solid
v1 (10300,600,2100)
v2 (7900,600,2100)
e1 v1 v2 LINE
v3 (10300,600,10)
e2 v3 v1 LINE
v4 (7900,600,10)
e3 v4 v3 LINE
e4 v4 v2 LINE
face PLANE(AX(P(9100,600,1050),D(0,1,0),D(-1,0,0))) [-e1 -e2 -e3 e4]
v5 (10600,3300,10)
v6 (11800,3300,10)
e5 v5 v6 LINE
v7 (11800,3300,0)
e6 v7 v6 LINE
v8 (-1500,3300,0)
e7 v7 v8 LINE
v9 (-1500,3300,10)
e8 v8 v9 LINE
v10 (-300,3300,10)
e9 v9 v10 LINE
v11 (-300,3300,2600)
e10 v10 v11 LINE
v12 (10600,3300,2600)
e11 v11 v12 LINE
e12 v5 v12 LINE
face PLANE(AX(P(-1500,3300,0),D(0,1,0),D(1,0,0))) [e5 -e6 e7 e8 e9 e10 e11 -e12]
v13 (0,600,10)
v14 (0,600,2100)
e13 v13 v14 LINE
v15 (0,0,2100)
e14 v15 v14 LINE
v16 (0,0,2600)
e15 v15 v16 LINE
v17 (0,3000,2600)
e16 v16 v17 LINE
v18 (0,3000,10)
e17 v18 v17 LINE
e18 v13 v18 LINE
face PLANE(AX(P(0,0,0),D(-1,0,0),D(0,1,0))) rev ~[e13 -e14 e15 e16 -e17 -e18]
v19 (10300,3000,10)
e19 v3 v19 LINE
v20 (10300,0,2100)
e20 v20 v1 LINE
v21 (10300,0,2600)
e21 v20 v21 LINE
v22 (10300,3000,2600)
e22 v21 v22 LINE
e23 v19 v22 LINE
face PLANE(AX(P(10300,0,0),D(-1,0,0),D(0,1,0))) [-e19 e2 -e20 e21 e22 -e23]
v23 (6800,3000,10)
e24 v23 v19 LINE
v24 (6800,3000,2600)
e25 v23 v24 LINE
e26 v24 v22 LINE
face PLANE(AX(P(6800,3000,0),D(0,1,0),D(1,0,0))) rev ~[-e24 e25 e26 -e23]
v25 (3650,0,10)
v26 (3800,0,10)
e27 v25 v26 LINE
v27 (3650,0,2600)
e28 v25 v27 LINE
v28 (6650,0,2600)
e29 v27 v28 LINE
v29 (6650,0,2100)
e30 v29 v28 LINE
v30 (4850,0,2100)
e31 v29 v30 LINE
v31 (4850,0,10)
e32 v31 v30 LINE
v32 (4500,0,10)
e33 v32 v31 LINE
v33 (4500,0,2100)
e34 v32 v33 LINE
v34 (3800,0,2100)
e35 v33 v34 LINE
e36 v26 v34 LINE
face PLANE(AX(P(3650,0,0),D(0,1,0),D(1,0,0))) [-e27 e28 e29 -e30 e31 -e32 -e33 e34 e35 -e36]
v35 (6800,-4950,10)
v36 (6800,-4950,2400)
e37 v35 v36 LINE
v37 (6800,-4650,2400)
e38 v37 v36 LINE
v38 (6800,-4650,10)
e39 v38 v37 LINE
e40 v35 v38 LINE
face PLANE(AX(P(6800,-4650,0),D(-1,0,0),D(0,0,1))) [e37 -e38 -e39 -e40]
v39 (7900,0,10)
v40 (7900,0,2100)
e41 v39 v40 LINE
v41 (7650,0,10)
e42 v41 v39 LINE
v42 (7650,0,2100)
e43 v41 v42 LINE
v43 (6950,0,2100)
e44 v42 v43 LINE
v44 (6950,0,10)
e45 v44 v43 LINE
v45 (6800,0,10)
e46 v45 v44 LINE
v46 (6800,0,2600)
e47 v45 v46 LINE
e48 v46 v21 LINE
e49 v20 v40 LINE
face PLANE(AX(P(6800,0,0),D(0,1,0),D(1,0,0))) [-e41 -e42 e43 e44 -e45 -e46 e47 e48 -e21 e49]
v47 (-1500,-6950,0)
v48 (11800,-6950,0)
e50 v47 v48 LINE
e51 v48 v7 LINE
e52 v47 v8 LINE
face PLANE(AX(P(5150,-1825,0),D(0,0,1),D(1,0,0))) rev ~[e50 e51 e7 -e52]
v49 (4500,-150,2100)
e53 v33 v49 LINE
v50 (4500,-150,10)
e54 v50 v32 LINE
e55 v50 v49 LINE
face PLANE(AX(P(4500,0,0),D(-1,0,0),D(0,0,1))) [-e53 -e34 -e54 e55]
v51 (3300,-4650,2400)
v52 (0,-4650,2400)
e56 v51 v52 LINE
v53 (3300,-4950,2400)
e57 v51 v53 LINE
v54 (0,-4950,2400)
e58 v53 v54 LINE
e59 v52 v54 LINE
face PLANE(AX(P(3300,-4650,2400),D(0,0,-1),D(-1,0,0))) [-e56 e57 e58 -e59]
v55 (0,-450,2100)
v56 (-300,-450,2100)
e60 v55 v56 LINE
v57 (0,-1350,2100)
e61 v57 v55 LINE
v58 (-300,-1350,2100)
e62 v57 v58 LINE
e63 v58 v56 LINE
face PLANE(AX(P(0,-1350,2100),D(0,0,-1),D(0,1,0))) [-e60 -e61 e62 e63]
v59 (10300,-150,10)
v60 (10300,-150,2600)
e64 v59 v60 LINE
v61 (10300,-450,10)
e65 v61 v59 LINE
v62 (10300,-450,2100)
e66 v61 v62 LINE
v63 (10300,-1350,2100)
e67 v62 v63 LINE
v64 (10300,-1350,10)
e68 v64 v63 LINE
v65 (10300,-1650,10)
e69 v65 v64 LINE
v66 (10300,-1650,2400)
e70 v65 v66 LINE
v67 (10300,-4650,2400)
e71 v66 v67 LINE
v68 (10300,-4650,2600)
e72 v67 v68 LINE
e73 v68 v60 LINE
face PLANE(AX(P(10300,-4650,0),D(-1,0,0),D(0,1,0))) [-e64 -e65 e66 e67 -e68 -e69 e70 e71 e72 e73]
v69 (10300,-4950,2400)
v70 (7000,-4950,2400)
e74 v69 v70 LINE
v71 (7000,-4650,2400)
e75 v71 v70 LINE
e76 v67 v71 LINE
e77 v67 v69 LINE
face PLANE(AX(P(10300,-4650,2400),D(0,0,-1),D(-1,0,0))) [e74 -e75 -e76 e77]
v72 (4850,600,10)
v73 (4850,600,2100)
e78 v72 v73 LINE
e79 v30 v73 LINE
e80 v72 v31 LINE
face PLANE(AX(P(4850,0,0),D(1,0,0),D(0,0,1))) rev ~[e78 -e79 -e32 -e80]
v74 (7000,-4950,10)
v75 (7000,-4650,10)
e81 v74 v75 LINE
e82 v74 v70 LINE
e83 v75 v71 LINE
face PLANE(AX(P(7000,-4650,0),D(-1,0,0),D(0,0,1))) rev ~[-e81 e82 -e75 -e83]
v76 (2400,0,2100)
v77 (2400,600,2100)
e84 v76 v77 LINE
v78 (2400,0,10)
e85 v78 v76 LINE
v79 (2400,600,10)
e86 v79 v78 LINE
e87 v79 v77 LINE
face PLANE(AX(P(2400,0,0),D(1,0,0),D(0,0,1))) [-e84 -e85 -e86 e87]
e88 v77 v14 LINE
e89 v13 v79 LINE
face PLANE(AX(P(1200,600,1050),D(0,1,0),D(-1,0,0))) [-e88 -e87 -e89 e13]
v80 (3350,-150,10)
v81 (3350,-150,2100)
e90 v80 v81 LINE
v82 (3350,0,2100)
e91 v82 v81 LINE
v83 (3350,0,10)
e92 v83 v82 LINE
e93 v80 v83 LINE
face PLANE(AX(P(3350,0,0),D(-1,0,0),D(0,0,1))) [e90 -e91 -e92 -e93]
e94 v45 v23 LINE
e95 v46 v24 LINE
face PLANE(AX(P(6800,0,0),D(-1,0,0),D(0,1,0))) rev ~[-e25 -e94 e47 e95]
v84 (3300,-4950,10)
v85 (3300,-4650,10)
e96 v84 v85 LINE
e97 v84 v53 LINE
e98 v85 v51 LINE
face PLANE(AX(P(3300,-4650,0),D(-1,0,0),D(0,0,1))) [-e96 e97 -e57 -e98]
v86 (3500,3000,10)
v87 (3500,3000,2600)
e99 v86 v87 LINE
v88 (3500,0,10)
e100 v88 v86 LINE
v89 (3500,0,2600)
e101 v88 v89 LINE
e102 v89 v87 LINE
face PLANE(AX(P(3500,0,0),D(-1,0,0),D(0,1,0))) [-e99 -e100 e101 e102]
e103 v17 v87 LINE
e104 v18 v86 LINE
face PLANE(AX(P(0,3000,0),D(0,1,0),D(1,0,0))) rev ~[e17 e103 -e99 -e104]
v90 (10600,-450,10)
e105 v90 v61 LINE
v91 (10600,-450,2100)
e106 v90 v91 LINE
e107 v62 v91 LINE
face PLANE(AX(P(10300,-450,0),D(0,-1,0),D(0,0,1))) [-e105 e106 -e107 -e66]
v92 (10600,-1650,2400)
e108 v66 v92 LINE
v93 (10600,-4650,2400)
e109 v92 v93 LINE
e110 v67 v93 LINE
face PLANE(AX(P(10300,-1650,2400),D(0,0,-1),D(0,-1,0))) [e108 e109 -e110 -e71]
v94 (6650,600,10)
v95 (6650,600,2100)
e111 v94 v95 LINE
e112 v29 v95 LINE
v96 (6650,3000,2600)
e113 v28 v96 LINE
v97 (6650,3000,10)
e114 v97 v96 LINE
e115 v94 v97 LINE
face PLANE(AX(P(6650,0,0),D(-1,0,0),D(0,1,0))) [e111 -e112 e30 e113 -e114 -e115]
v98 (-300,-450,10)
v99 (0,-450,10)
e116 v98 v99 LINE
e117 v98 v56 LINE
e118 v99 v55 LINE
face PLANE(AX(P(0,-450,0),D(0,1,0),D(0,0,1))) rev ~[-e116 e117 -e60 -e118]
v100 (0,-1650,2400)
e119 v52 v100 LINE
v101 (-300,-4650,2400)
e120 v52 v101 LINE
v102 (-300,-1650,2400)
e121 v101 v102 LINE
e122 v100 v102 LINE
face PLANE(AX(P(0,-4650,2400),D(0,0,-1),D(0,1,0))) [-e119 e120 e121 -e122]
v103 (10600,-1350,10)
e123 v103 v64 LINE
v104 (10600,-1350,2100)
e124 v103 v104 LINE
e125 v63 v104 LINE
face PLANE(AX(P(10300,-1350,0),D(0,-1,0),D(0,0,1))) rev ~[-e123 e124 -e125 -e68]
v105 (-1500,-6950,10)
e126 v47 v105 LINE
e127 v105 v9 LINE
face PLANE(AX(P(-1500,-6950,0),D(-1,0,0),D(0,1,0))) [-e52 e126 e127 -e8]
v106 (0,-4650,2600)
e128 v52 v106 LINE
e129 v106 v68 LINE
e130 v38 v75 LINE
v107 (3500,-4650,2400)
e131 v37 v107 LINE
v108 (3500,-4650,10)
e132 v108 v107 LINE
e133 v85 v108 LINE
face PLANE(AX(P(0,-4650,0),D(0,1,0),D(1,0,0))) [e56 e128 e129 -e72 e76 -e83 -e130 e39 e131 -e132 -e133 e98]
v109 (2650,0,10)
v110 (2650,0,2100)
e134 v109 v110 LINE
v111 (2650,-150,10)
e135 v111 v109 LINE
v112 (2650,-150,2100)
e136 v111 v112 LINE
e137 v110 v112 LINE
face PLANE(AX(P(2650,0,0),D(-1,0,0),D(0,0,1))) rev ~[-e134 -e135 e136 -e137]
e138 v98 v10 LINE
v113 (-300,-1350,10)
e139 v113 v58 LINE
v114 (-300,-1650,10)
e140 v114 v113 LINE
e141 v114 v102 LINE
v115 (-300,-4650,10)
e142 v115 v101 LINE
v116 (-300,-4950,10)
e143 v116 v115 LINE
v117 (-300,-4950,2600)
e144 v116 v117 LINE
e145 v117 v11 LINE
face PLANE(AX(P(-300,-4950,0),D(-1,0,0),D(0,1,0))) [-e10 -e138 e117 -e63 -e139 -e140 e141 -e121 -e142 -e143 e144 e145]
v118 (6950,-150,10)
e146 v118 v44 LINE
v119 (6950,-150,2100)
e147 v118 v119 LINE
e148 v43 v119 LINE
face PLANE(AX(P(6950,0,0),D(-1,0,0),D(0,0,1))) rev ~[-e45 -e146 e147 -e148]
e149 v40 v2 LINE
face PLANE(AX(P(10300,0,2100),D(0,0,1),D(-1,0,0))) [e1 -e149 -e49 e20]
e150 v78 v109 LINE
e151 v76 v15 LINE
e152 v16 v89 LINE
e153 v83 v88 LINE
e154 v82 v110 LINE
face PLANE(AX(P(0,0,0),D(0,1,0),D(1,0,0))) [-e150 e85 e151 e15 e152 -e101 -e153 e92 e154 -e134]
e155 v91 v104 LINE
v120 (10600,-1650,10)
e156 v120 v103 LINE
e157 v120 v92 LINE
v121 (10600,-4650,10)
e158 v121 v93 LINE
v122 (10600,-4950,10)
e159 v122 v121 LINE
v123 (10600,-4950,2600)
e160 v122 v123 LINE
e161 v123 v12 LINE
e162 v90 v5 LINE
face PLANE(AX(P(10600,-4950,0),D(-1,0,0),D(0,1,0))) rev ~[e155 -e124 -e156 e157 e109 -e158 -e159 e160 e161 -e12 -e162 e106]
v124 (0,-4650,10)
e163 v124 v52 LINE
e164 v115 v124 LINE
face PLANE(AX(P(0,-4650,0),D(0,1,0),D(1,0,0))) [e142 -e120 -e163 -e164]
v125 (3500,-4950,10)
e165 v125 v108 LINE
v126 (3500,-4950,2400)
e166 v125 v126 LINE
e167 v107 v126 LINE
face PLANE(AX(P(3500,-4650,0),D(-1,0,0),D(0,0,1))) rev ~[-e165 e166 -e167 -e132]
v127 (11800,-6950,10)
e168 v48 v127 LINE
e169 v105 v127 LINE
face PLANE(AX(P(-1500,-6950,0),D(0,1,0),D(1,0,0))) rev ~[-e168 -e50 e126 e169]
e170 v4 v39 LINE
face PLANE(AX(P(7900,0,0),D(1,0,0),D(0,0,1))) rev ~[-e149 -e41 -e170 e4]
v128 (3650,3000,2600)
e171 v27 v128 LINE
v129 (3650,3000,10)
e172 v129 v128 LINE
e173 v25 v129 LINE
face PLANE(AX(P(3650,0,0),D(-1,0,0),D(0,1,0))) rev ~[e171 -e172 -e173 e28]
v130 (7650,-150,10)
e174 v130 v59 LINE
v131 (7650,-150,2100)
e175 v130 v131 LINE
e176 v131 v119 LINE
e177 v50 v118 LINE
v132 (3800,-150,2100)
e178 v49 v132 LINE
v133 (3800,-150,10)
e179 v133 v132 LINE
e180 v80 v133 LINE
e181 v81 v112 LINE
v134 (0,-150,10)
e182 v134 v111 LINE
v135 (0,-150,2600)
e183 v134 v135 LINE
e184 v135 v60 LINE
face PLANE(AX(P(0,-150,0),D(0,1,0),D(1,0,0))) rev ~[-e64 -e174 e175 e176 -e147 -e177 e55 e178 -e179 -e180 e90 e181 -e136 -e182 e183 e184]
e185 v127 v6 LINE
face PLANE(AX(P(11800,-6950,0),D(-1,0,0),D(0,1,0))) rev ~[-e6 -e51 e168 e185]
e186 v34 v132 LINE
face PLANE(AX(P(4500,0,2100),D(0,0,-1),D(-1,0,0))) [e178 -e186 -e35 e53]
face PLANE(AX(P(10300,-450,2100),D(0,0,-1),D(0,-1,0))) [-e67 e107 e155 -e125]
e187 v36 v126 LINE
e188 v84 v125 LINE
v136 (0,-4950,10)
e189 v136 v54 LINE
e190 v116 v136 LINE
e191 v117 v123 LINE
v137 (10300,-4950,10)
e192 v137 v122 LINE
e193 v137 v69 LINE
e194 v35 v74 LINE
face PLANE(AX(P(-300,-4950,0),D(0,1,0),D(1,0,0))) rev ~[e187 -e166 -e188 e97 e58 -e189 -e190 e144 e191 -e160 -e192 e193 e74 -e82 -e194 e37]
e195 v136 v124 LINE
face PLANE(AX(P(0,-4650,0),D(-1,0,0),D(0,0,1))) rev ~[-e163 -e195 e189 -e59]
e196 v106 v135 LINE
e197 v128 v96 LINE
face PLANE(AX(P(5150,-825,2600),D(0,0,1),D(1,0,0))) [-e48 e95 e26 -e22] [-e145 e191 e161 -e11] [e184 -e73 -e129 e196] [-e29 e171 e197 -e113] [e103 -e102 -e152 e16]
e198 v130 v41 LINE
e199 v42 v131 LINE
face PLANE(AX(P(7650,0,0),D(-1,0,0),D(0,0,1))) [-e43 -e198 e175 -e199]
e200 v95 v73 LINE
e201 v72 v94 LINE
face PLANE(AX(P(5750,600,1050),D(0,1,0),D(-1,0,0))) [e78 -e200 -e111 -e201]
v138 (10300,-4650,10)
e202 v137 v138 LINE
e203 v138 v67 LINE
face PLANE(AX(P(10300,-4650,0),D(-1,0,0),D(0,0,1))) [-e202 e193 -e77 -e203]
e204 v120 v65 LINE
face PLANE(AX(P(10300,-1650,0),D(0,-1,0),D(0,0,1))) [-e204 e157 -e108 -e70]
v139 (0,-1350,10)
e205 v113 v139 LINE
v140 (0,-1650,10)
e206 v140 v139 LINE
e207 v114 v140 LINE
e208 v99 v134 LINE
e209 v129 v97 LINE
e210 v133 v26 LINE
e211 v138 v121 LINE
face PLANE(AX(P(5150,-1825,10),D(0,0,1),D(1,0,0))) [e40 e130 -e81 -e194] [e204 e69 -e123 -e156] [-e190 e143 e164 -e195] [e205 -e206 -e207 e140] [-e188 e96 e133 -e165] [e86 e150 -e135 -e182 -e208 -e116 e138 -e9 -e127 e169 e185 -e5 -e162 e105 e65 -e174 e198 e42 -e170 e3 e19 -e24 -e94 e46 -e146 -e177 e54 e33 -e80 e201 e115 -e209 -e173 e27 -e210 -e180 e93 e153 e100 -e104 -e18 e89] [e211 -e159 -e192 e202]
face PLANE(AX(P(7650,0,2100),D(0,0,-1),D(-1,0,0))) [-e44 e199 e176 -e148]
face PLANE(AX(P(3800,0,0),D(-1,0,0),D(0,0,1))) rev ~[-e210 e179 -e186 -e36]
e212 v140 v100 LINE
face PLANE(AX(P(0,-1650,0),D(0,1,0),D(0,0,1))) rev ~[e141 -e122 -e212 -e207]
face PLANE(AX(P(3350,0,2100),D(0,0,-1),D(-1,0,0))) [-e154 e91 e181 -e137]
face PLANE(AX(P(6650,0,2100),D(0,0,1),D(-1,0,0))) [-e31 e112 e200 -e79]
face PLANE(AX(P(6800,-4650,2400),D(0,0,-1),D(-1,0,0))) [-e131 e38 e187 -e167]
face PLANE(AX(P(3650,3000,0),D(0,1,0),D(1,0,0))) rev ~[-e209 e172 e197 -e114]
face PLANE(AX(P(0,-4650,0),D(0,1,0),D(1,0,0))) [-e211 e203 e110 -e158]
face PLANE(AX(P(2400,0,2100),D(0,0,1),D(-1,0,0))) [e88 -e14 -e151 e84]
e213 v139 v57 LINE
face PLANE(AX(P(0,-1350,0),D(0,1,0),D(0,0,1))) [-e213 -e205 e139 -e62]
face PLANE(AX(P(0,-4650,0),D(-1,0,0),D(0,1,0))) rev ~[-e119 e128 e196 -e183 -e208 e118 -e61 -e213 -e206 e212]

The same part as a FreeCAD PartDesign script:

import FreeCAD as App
import Part
import Sketcher

V = App.Vector
Q = App.Units.Quantity

doc = App.newDocument("Part")
body = doc.addObject("PartDesign::Body", "Body")

# Sketch on XY plane
sketch1 = doc.addObject("Sketcher::SketchObject", "Sketch")
body.addObject(sketch1)
sketch1.AttachmentSupport = (doc.XY_Plane, [""])
sketch1.MapMode = "FlatFace"
sketch1.addGeometry(Part.LineSegment(V(-300, 3300, 0), V(-300, -4950, 0)), False)
sketch1.addGeometry(Part.LineSegment(V(-300, -4950, 0), V(10600, -4950, 0)), False)
sketch1.addGeometry(Part.LineSegment(V(10600, -4950, 0), V(10600, 3300, 0)), False)
sketch1.addGeometry(Part.LineSegment(V(10600, 3300, 0), V(-300, 3300, 0)), False)
sketch1.addGeometry(Part.LineSegment(V(10300, -4650, 0), V(0, -4650, 0)), False)
sketch1.addGeometry(Part.LineSegment(V(0, -4650, 0), V(0, -150, 0)), False)
sketch1.addGeometry(Part.LineSegment(V(0, -150, 0), V(10300, -150, 0)), False)
sketch1.addGeometry(Part.LineSegment(V(10300, -150, 0), V(10300, -4650, 0)), False)
sketch1.addGeometry(Part.LineSegment(V(3500, 0, 0), V(0, 0, 0)), False)
sketch1.addGeometry(Part.LineSegment(V(0, 0, 0), V(0, 3000, 0)), False)
sketch1.addGeometry(Part.LineSegment(V(0, 3000, 0), V(3500, 3000, 0)), False)
sketch1.addGeometry(Part.LineSegment(V(3500, 3000, 0), V(3500, 0, 0)), False)
sketch1.addGeometry(Part.LineSegment(V(6650, 0, 0), V(3650, 0, 0)), False)
sketch1.addGeometry(Part.LineSegment(V(3650, 0, 0), V(3650, 3000, 0)), False)
sketch1.addGeometry(Part.LineSegment(V(3650, 3000, 0), V(6650, 3000, 0)), False)
sketch1.addGeometry(Part.LineSegment(V(6650, 3000, 0), V(6650, 0, 0)), False)
sketch1.addGeometry(Part.LineSegment(V(10300, 0, 0), V(6800, 0, 0)), False)
sketch1.addGeometry(Part.LineSegment(V(6800, 0, 0), V(6800, 3000, 0)), False)
sketch1.addGeometry(Part.LineSegment(V(6800, 3000, 0), V(10300, 3000, 0)), False)
sketch1.addGeometry(Part.LineSegment(V(10300, 3000, 0), V(10300, 0, 0)), False)
sketch1.addConstraint(Sketcher.Constraint("Coincident", 0, 2, 1, 1))
sketch1.addConstraint(Sketcher.Constraint("Coincident", 1, 2, 2, 1))
sketch1.addConstraint(Sketcher.Constraint("Coincident", 2, 2, 3, 1))
sketch1.addConstraint(Sketcher.Constraint("Coincident", 3, 2, 0, 1))
sketch1.addConstraint(Sketcher.Constraint("Coincident", 4, 2, 5, 1))
sketch1.addConstraint(Sketcher.Constraint("Coincident", 5, 2, 6, 1))
sketch1.addConstraint(Sketcher.Constraint("Coincident", 6, 2, 7, 1))
sketch1.addConstraint(Sketcher.Constraint("Coincident", 7, 2, 4, 1))
sketch1.addConstraint(Sketcher.Constraint("Coincident", 8, 2, 9, 1))
sketch1.addConstraint(Sketcher.Constraint("Coincident", 9, 2, 10, 1))
sketch1.addConstraint(Sketcher.Constraint("Coincident", 10, 2, 11, 1))
sketch1.addConstraint(Sketcher.Constraint("Coincident", 11, 2, 8, 1))
sketch1.addConstraint(Sketcher.Constraint("Coincident", 12, 2, 13, 1))
sketch1.addConstraint(Sketcher.Constraint("Coincident", 13, 2, 14, 1))
sketch1.addConstraint(Sketcher.Constraint("Coincident", 14, 2, 15, 1))
sketch1.addConstraint(Sketcher.Constraint("Coincident", 15, 2, 12, 1))
sketch1.addConstraint(Sketcher.Constraint("Coincident", 16, 2, 17, 1))
sketch1.addConstraint(Sketcher.Constraint("Coincident", 17, 2, 18, 1))
sketch1.addConstraint(Sketcher.Constraint("Coincident", 18, 2, 19, 1))
sketch1.addConstraint(Sketcher.Constraint("Coincident", 19, 2, 16, 1))
sketch1.addConstraint(Sketcher.Constraint("Vertical", 0))
sketch1.addConstraint(Sketcher.Constraint("Horizontal", 1))
sketch1.addConstraint(Sketcher.Constraint("Vertical", 2))
sketch1.addConstraint(Sketcher.Constraint("Horizontal", 3))
sketch1.addConstraint(Sketcher.Constraint("Horizontal", 4))
sketch1.addConstraint(Sketcher.Constraint("Vertical", 5))
sketch1.addConstraint(Sketcher.Constraint("Horizontal", 6))
sketch1.addConstraint(Sketcher.Constraint("Vertical", 7))
sketch1.addConstraint(Sketcher.Constraint("Horizontal", 8))
sketch1.addConstraint(Sketcher.Constraint("Vertical", 9))
sketch1.addConstraint(Sketcher.Constraint("Horizontal", 10))
sketch1.addConstraint(Sketcher.Constraint("Vertical", 11))
sketch1.addConstraint(Sketcher.Constraint("Horizontal", 12))
sketch1.addConstraint(Sketcher.Constraint("Vertical", 13))
sketch1.addConstraint(Sketcher.Constraint("Horizontal", 14))
sketch1.addConstraint(Sketcher.Constraint("Vertical", 15))
sketch1.addConstraint(Sketcher.Constraint("Horizontal", 16))
sketch1.addConstraint(Sketcher.Constraint("Vertical", 17))
sketch1.addConstraint(Sketcher.Constraint("Horizontal", 18))
sketch1.addConstraint(Sketcher.Constraint("Vertical", 19))
sketch1.addConstraint(Sketcher.Constraint("Coincident", 8, 2, -1, 1))
sketch1.addConstraint(Sketcher.Constraint("PointOnObject", 4, 2, -2))
sketch1.addConstraint(Sketcher.Constraint("PointOnObject", 12, 2, -1))
sketch1.addConstraint(Sketcher.Constraint("PointOnObject", 16, 2, -1))
sketch1.addConstraint(Sketcher.Constraint("Horizontal", 10, 2, 13, 2))
sketch1.addConstraint(Sketcher.Constraint("Horizontal", 14, 2, 17, 2))
sketch1.addConstraint(Sketcher.Constraint("Vertical", 7, 2, 18, 2))
sketch1.addConstraint(Sketcher.Constraint("Equal", 10, 16))
sketch1.addConstraint(Sketcher.Constraint("Equal", 14, 9))
sketch1.addConstraint(Sketcher.Constraint("DistanceX", 1, 1, 1, 2, Q("10900 mm")))
sketch1.addConstraint(Sketcher.Constraint("DistanceX", 4, 2, 4, 1, Q("10300 mm")))
sketch1.addConstraint(Sketcher.Constraint("DistanceX", 8, 2, 8, 1, Q("3500 mm")))
sketch1.addConstraint(Sketcher.Constraint("DistanceX", 12, 2, 12, 1, Q("3000 mm")))
sketch1.addConstraint(Sketcher.Constraint("DistanceY", 0, 2, 0, 1, Q("8250 mm")))
sketch1.addConstraint(Sketcher.Constraint("DistanceY", 5, 1, 5, 2, Q("4500 mm")))
sketch1.addConstraint(Sketcher.Constraint("DistanceX", 0, 2, -1, 1, Q("300 mm")))
sketch1.addConstraint(Sketcher.Constraint("DistanceY", 0, 2, -1, 1, Q("4950 mm")))
sketch1.addConstraint(Sketcher.Constraint("DistanceY", 4, 2, -1, 1, Q("4650 mm")))
sketch1.addConstraint(Sketcher.Constraint("DistanceX", -1, 1, 12, 2, Q("3650 mm")))
pad1 = doc.addObject("PartDesign::Pad", "Pad")
body.addObject(pad1)
pad1.Profile = sketch1
pad1.Length = 2600

# Sketch on XZ plane
sketch2 = doc.addObject("Sketcher::SketchObject", "Sketch001")
body.addObject(sketch2)
sketch2.AttachmentSupport = (doc.XZ_Plane, [""])
sketch2.MapMode = "FlatFace"
sketch2.addGeometry(Part.LineSegment(V(4500, 2100, 0), V(4500, 0, 0)), False)
sketch2.addGeometry(Part.LineSegment(V(4500, 0, 0), V(3800, 0, 0)), False)
sketch2.addGeometry(Part.LineSegment(V(3800, 0, 0), V(3800, 2100, 0)), False)
sketch2.addGeometry(Part.LineSegment(V(3800, 2100, 0), V(4500, 2100, 0)), False)
sketch2.addGeometry(Part.LineSegment(V(7650, 2100, 0), V(7650, 0, 0)), False)
sketch2.addGeometry(Part.LineSegment(V(7650, 0, 0), V(6950, 0, 0)), False)
sketch2.addGeometry(Part.LineSegment(V(6950, 0, 0), V(6950, 2100, 0)), False)
sketch2.addGeometry(Part.LineSegment(V(6950, 2100, 0), V(7650, 2100, 0)), False)
sketch2.addGeometry(Part.LineSegment(V(3350, 2100, 0), V(3350, 0, 0)), False)
sketch2.addGeometry(Part.LineSegment(V(3350, 0, 0), V(2650, 0, 0)), False)
sketch2.addGeometry(Part.LineSegment(V(2650, 0, 0), V(2650, 2100, 0)), False)
sketch2.addGeometry(Part.LineSegment(V(2650, 2100, 0), V(3350, 2100, 0)), False)
sketch2.addConstraint(Sketcher.Constraint("Coincident", 0, 2, 1, 1))
sketch2.addConstraint(Sketcher.Constraint("Coincident", 1, 2, 2, 1))
sketch2.addConstraint(Sketcher.Constraint("Coincident", 2, 2, 3, 1))
sketch2.addConstraint(Sketcher.Constraint("Coincident", 3, 2, 0, 1))
sketch2.addConstraint(Sketcher.Constraint("Coincident", 4, 2, 5, 1))
sketch2.addConstraint(Sketcher.Constraint("Coincident", 5, 2, 6, 1))
sketch2.addConstraint(Sketcher.Constraint("Coincident", 6, 2, 7, 1))
sketch2.addConstraint(Sketcher.Constraint("Coincident", 7, 2, 4, 1))
sketch2.addConstraint(Sketcher.Constraint("Coincident", 8, 2, 9, 1))
sketch2.addConstraint(Sketcher.Constraint("Coincident", 9, 2, 10, 1))
sketch2.addConstraint(Sketcher.Constraint("Coincident", 10, 2, 11, 1))
sketch2.addConstraint(Sketcher.Constraint("Coincident", 11, 2, 8, 1))
sketch2.addConstraint(Sketcher.Constraint("Vertical", 0))
sketch2.addConstraint(Sketcher.Constraint("Horizontal", 1))
sketch2.addConstraint(Sketcher.Constraint("Vertical", 2))
sketch2.addConstraint(Sketcher.Constraint("Horizontal", 3))
sketch2.addConstraint(Sketcher.Constraint("Vertical", 4))
sketch2.addConstraint(Sketcher.Constraint("Horizontal", 5))
sketch2.addConstraint(Sketcher.Constraint("Vertical", 6))
sketch2.addConstraint(Sketcher.Constraint("Horizontal", 7))
sketch2.addConstraint(Sketcher.Constraint("Vertical", 8))
sketch2.addConstraint(Sketcher.Constraint("Horizontal", 9))
sketch2.addConstraint(Sketcher.Constraint("Vertical", 10))
sketch2.addConstraint(Sketcher.Constraint("Horizontal", 11))
sketch2.addConstraint(Sketcher.Constraint("PointOnObject", 0, 2, -1))
sketch2.addConstraint(Sketcher.Constraint("PointOnObject", 4, 2, -1))
sketch2.addConstraint(Sketcher.Constraint("PointOnObject", 8, 2, -1))
sketch2.addConstraint(Sketcher.Constraint("Horizontal", 3, 2, 6, 2))
sketch2.addConstraint(Sketcher.Constraint("Horizontal", 7, 2, 10, 2))
sketch2.addConstraint(Sketcher.Constraint("Equal", 3, 5))
sketch2.addConstraint(Sketcher.Constraint("Equal", 7, 9))
sketch2.addConstraint(Sketcher.Constraint("DistanceX", 1, 2, 1, 1, Q("700 mm")))
sketch2.addConstraint(Sketcher.Constraint("DistanceY", 0, 2, 0, 1, Q("2100 mm")))
sketch2.addConstraint(Sketcher.Constraint("DistanceX", -1, 1, 0, 2, Q("4500 mm")))
sketch2.addConstraint(Sketcher.Constraint("DistanceX", -1, 1, 4, 2, Q("7650 mm")))
sketch2.addConstraint(Sketcher.Constraint("DistanceX", -1, 1, 8, 2, Q("3350 mm")))
pocket1 = doc.addObject("PartDesign::Pocket", "Pocket")
body.addObject(pocket1)
pocket1.Profile = sketch2
pocket1.Length = 150
pocket1.Reversed = True

# Sketch on XZ plane
sketch3 = doc.addObject("Sketcher::SketchObject", "Sketch002")
body.addObject(sketch3)
sketch3.AttachmentSupport = (doc.XZ_Plane, [""])
sketch3.MapMode = "FlatFace"
sketch3.addGeometry(Part.LineSegment(V(10300, 2100, 0), V(10300, 0, 0)), False)
sketch3.addGeometry(Part.LineSegment(V(10300, 0, 0), V(7900, 0, 0)), False)
sketch3.addGeometry(Part.LineSegment(V(7900, 0, 0), V(7900, 2100, 0)), False)
sketch3.addGeometry(Part.LineSegment(V(7900, 2100, 0), V(10300, 2100, 0)), False)
sketch3.addGeometry(Part.LineSegment(V(6650, 2100, 0), V(6650, 0, 0)), False)
sketch3.addGeometry(Part.LineSegment(V(6650, 0, 0), V(4850, 0, 0)), False)
sketch3.addGeometry(Part.LineSegment(V(4850, 0, 0), V(4850, 2100, 0)), False)
sketch3.addGeometry(Part.LineSegment(V(4850, 2100, 0), V(6650, 2100, 0)), False)
sketch3.addGeometry(Part.LineSegment(V(2400, 2100, 0), V(2400, 0, 0)), False)
sketch3.addGeometry(Part.LineSegment(V(2400, 0, 0), V(0, 0, 0)), False)
sketch3.addGeometry(Part.LineSegment(V(0, 0, 0), V(0, 2100, 0)), False)
sketch3.addGeometry(Part.LineSegment(V(0, 2100, 0), V(2400, 2100, 0)), False)
sketch3.addConstraint(Sketcher.Constraint("Coincident", 0, 2, 1, 1))
sketch3.addConstraint(Sketcher.Constraint("Coincident", 1, 2, 2, 1))
sketch3.addConstraint(Sketcher.Constraint("Coincident", 2, 2, 3, 1))
sketch3.addConstraint(Sketcher.Constraint("Coincident", 3, 2, 0, 1))
sketch3.addConstraint(Sketcher.Constraint("Coincident", 4, 2, 5, 1))
sketch3.addConstraint(Sketcher.Constraint("Coincident", 5, 2, 6, 1))
sketch3.addConstraint(Sketcher.Constraint("Coincident", 6, 2, 7, 1))
sketch3.addConstraint(Sketcher.Constraint("Coincident", 7, 2, 4, 1))
sketch3.addConstraint(Sketcher.Constraint("Coincident", 8, 2, 9, 1))
sketch3.addConstraint(Sketcher.Constraint("Coincident", 9, 2, 10, 1))
sketch3.addConstraint(Sketcher.Constraint("Coincident", 10, 2, 11, 1))
sketch3.addConstraint(Sketcher.Constraint("Coincident", 11, 2, 8, 1))
sketch3.addConstraint(Sketcher.Constraint("Vertical", 0))
sketch3.addConstraint(Sketcher.Constraint("Horizontal", 1))
sketch3.addConstraint(Sketcher.Constraint("Vertical", 2))
sketch3.addConstraint(Sketcher.Constraint("Horizontal", 3))
sketch3.addConstraint(Sketcher.Constraint("Vertical", 4))
sketch3.addConstraint(Sketcher.Constraint("Horizontal", 5))
sketch3.addConstraint(Sketcher.Constraint("Vertical", 6))
sketch3.addConstraint(Sketcher.Constraint("Horizontal", 7))
sketch3.addConstraint(Sketcher.Constraint("Vertical", 8))
sketch3.addConstraint(Sketcher.Constraint("Horizontal", 9))
sketch3.addConstraint(Sketcher.Constraint("Vertical", 10))
sketch3.addConstraint(Sketcher.Constraint("Horizontal", 11))
sketch3.addConstraint(Sketcher.Constraint("Coincident", 9, 2, -1, 1))
sketch3.addConstraint(Sketcher.Constraint("PointOnObject", 0, 2, -1))
sketch3.addConstraint(Sketcher.Constraint("PointOnObject", 4, 2, -1))
sketch3.addConstraint(Sketcher.Constraint("Horizontal", 3, 2, 6, 2))
sketch3.addConstraint(Sketcher.Constraint("Horizontal", 7, 2, 10, 2))
sketch3.addConstraint(Sketcher.Constraint("Equal", 3, 9))
sketch3.addConstraint(Sketcher.Constraint("DistanceX", 1, 2, 1, 1, Q("2400 mm")))
sketch3.addConstraint(Sketcher.Constraint("DistanceX", 5, 2, 5, 1, Q("1800 mm")))
sketch3.addConstraint(Sketcher.Constraint("DistanceY", 0, 2, 0, 1, Q("2100 mm")))
sketch3.addConstraint(Sketcher.Constraint("DistanceX", -1, 1, 0, 2, Q("10300 mm")))
sketch3.addConstraint(Sketcher.Constraint("DistanceX", -1, 1, 4, 2, Q("6650 mm")))
pad2 = doc.addObject("PartDesign::Pad", "Pad001")
body.addObject(pad2)
pad2.Profile = sketch3
pad2.Length = 600
pad2.Reversed = True

# Sketch on YZ plane
sketch4 = doc.addObject("Sketcher::SketchObject", "Sketch003")
body.addObject(sketch4)
sketch4.AttachmentSupport = (doc.YZ_Plane, [""])
sketch4.MapMode = "FlatFace"
sketch4.AttachmentOffset = App.Placement(V(0, 0, 10300), App.Rotation())
sketch4.addGeometry(Part.LineSegment(V(-450, 2100, 0), V(-450, 0, 0)), False)
sketch4.addGeometry(Part.LineSegment(V(-450, 0, 0), V(-1350, 0, 0)), False)
sketch4.addGeometry(Part.LineSegment(V(-1350, 0, 0), V(-1350, 2100, 0)), False)
sketch4.addGeometry(Part.LineSegment(V(-1350, 2100, 0), V(-450, 2100, 0)), False)
sketch4.addConstraint(Sketcher.Constraint("Coincident", 0, 2, 1, 1))
sketch4.addConstraint(Sketcher.Constraint("Coincident", 1, 2, 2, 1))
sketch4.addConstraint(Sketcher.Constraint("Coincident", 2, 2, 3, 1))
sketch4.addConstraint(Sketcher.Constraint("Coincident", 3, 2, 0, 1))
sketch4.addConstraint(Sketcher.Constraint("Vertical", 0))
sketch4.addConstraint(Sketcher.Constraint("Horizontal", 1))
sketch4.addConstraint(Sketcher.Constraint("Vertical", 2))
sketch4.addConstraint(Sketcher.Constraint("Horizontal", 3))
sketch4.addConstraint(Sketcher.Constraint("PointOnObject", 0, 2, -1))
sketch4.addConstraint(Sketcher.Constraint("DistanceX", 1, 2, 1, 1, Q("900 mm")))
sketch4.addConstraint(Sketcher.Constraint("DistanceY", 0, 2, 0, 1, Q("2100 mm")))
sketch4.addConstraint(Sketcher.Constraint("DistanceX", 0, 2, -1, 1, Q("450 mm")))
pocket2 = doc.addObject("PartDesign::Pocket", "Pocket001")
body.addObject(pocket2)
pocket2.Profile = sketch4
pocket2.Type = "ThroughAll"
pocket2.Reversed = True

# Sketch on YZ plane
sketch5 = doc.addObject("Sketcher::SketchObject", "Sketch004")
body.addObject(sketch5)
sketch5.AttachmentSupport = (doc.YZ_Plane, [""])
sketch5.MapMode = "FlatFace"
sketch5.addGeometry(Part.LineSegment(V(-1350, 2100, 0), V(-1350, 0, 0)), False)
sketch5.addGeometry(Part.LineSegment(V(-1350, 0, 0), V(-450, 0, 0)), False)
sketch5.addGeometry(Part.LineSegment(V(-450, 0, 0), V(-450, 2100, 0)), False)
sketch5.addGeometry(Part.LineSegment(V(-450, 2100, 0), V(-1350, 2100, 0)), False)
sketch5.addConstraint(Sketcher.Constraint("Coincident", 0, 2, 1, 1))
sketch5.addConstraint(Sketcher.Constraint("Coincident", 1, 2, 2, 1))
sketch5.addConstraint(Sketcher.Constraint("Coincident", 2, 2, 3, 1))
sketch5.addConstraint(Sketcher.Constraint("Coincident", 3, 2, 0, 1))
sketch5.addConstraint(Sketcher.Constraint("Vertical", 0))
sketch5.addConstraint(Sketcher.Constraint("Horizontal", 1))
sketch5.addConstraint(Sketcher.Constraint("Vertical", 2))
sketch5.addConstraint(Sketcher.Constraint("Horizontal", 3))
sketch5.addConstraint(Sketcher.Constraint("PointOnObject", 0, 2, -1))
sketch5.addConstraint(Sketcher.Constraint("DistanceX", 1, 1, 1, 2, Q("900 mm")))
sketch5.addConstraint(Sketcher.Constraint("DistanceY", 0, 2, 0, 1, Q("2100 mm")))
sketch5.addConstraint(Sketcher.Constraint("DistanceX", 0, 2, -1, 1, Q("1350 mm")))
pocket3 = doc.addObject("PartDesign::Pocket", "Pocket002")
body.addObject(pocket3)
pocket3.Profile = sketch5
pocket3.Type = "ThroughAll"

# Sketch on YZ plane
sketch6 = doc.addObject("Sketcher::SketchObject", "Sketch005")
body.addObject(sketch6)
sketch6.AttachmentSupport = (doc.YZ_Plane, [""])
sketch6.MapMode = "FlatFace"
sketch6.addGeometry(Part.LineSegment(V(-4650, 2400, 0), V(-4650, 0, 0)), False)
sketch6.addGeometry(Part.LineSegment(V(-4650, 0, 0), V(-1650, 0, 0)), False)
sketch6.addGeometry(Part.LineSegment(V(-1650, 0, 0), V(-1650, 2400, 0)), False)
sketch6.addGeometry(Part.LineSegment(V(-1650, 2400, 0), V(-4650, 2400, 0)), False)
sketch6.addConstraint(Sketcher.Constraint("Coincident", 0, 2, 1, 1))
sketch6.addConstraint(Sketcher.Constraint("Coincident", 1, 2, 2, 1))
sketch6.addConstraint(Sketcher.Constraint("Coincident", 2, 2, 3, 1))
sketch6.addConstraint(Sketcher.Constraint("Coincident", 3, 2, 0, 1))
sketch6.addConstraint(Sketcher.Constraint("Vertical", 0))
sketch6.addConstraint(Sketcher.Constraint("Horizontal", 1))
sketch6.addConstraint(Sketcher.Constraint("Vertical", 2))
sketch6.addConstraint(Sketcher.Constraint("Horizontal", 3))
sketch6.addConstraint(Sketcher.Constraint("PointOnObject", 0, 2, -1))
sketch6.addConstraint(Sketcher.Constraint("DistanceX", 1, 1, 1, 2, Q("3000 mm")))
sketch6.addConstraint(Sketcher.Constraint("DistanceY", 0, 2, 0, 1, Q("2400 mm")))
sketch6.addConstraint(Sketcher.Constraint("DistanceX", 0, 2, -1, 1, Q("4650 mm")))
pocket4 = doc.addObject("PartDesign::Pocket", "Pocket003")
body.addObject(pocket4)
pocket4.Profile = sketch6
pocket4.Type = "ThroughAll"

# Sketch on YZ plane
sketch7 = doc.addObject("Sketcher::SketchObject", "Sketch006")
body.addObject(sketch7)
sketch7.AttachmentSupport = (doc.YZ_Plane, [""])
sketch7.MapMode = "FlatFace"
sketch7.AttachmentOffset = App.Placement(V(0, 0, 10300), App.Rotation())
sketch7.addGeometry(Part.LineSegment(V(-1650, 2400, 0), V(-1650, 0, 0)), False)
sketch7.addGeometry(Part.LineSegment(V(-1650, 0, 0), V(-4650, 0, 0)), False)
sketch7.addGeometry(Part.LineSegment(V(-4650, 0, 0), V(-4650, 2400, 0)), False)
sketch7.addGeometry(Part.LineSegment(V(-4650, 2400, 0), V(-1650, 2400, 0)), False)
sketch7.addConstraint(Sketcher.Constraint("Coincident", 0, 2, 1, 1))
sketch7.addConstraint(Sketcher.Constraint("Coincident", 1, 2, 2, 1))
sketch7.addConstraint(Sketcher.Constraint("Coincident", 2, 2, 3, 1))
sketch7.addConstraint(Sketcher.Constraint("Coincident", 3, 2, 0, 1))
sketch7.addConstraint(Sketcher.Constraint("Vertical", 0))
sketch7.addConstraint(Sketcher.Constraint("Horizontal", 1))
sketch7.addConstraint(Sketcher.Constraint("Vertical", 2))
sketch7.addConstraint(Sketcher.Constraint("Horizontal", 3))
sketch7.addConstraint(Sketcher.Constraint("PointOnObject", 0, 2, -1))
sketch7.addConstraint(Sketcher.Constraint("DistanceX", 1, 2, 1, 1, Q("3000 mm")))
sketch7.addConstraint(Sketcher.Constraint("DistanceY", 0, 2, 0, 1, Q("2400 mm")))
sketch7.addConstraint(Sketcher.Constraint("DistanceX", 0, 2, -1, 1, Q("1650 mm")))
pocket5 = doc.addObject("PartDesign::Pocket", "Pocket004")
body.addObject(pocket5)
pocket5.Profile = sketch7
pocket5.Type = "ThroughAll"
pocket5.Reversed = True

# Sketch on XZ plane
sketch8 = doc.addObject("Sketcher::SketchObject", "Sketch007")
body.addObject(sketch8)
sketch8.AttachmentSupport = (doc.XZ_Plane, [""])
sketch8.MapMode = "FlatFace"
sketch8.AttachmentOffset = App.Placement(V(0, 0, 4650), App.Rotation())
sketch8.addGeometry(Part.LineSegment(V(10300, 2400, 0), V(10300, 0, 0)), False)
sketch8.addGeometry(Part.LineSegment(V(10300, 0, 0), V(7000, 0, 0)), False)
sketch8.addGeometry(Part.LineSegment(V(7000, 0, 0), V(7000, 2400, 0)), False)
sketch8.addGeometry(Part.LineSegment(V(7000, 2400, 0), V(10300, 2400, 0)), False)
sketch8.addGeometry(Part.LineSegment(V(6800, 2400, 0), V(6800, 0, 0)), False)
sketch8.addGeometry(Part.LineSegment(V(6800, 0, 0), V(3500, 0, 0)), False)
sketch8.addGeometry(Part.LineSegment(V(3500, 0, 0), V(3500, 2400, 0)), False)
sketch8.addGeometry(Part.LineSegment(V(3500, 2400, 0), V(6800, 2400, 0)), False)
sketch8.addGeometry(Part.LineSegment(V(3300, 2400, 0), V(3300, 0, 0)), False)
sketch8.addGeometry(Part.LineSegment(V(3300, 0, 0), V(0, 0, 0)), False)
sketch8.addGeometry(Part.LineSegment(V(0, 0, 0), V(0, 2400, 0)), False)
sketch8.addGeometry(Part.LineSegment(V(0, 2400, 0), V(3300, 2400, 0)), False)
sketch8.addConstraint(Sketcher.Constraint("Coincident", 0, 2, 1, 1))
sketch8.addConstraint(Sketcher.Constraint("Coincident", 1, 2, 2, 1))
sketch8.addConstraint(Sketcher.Constraint("Coincident", 2, 2, 3, 1))
sketch8.addConstraint(Sketcher.Constraint("Coincident", 3, 2, 0, 1))
sketch8.addConstraint(Sketcher.Constraint("Coincident", 4, 2, 5, 1))
sketch8.addConstraint(Sketcher.Constraint("Coincident", 5, 2, 6, 1))
sketch8.addConstraint(Sketcher.Constraint("Coincident", 6, 2, 7, 1))
sketch8.addConstraint(Sketcher.Constraint("Coincident", 7, 2, 4, 1))
sketch8.addConstraint(Sketcher.Constraint("Coincident", 8, 2, 9, 1))
sketch8.addConstraint(Sketcher.Constraint("Coincident", 9, 2, 10, 1))
sketch8.addConstraint(Sketcher.Constraint("Coincident", 10, 2, 11, 1))
sketch8.addConstraint(Sketcher.Constraint("Coincident", 11, 2, 8, 1))
sketch8.addConstraint(Sketcher.Constraint("Vertical", 0))
sketch8.addConstraint(Sketcher.Constraint("Horizontal", 1))
sketch8.addConstraint(Sketcher.Constraint("Vertical", 2))
sketch8.addConstraint(Sketcher.Constraint("Horizontal", 3))
sketch8.addConstraint(Sketcher.Constraint("Vertical", 4))
sketch8.addConstraint(Sketcher.Constraint("Horizontal", 5))
sketch8.addConstraint(Sketcher.Constraint("Vertical", 6))
sketch8.addConstraint(Sketcher.Constraint("Horizontal", 7))
sketch8.addConstraint(Sketcher.Constraint("Vertical", 8))
sketch8.addConstraint(Sketcher.Constraint("Horizontal", 9))
sketch8.addConstraint(Sketcher.Constraint("Vertical", 10))
sketch8.addConstraint(Sketcher.Constraint("Horizontal", 11))
sketch8.addConstraint(Sketcher.Constraint("Coincident", 9, 2, -1, 1))
sketch8.addConstraint(Sketcher.Constraint("PointOnObject", 0, 2, -1))
sketch8.addConstraint(Sketcher.Constraint("PointOnObject", 4, 2, -1))
sketch8.addConstraint(Sketcher.Constraint("Horizontal", 3, 2, 6, 2))
sketch8.addConstraint(Sketcher.Constraint("Horizontal", 7, 2, 10, 2))
sketch8.addConstraint(Sketcher.Constraint("Equal", 3, 5))
sketch8.addConstraint(Sketcher.Constraint("Equal", 7, 9))
sketch8.addConstraint(Sketcher.Constraint("DistanceX", 1, 2, 1, 1, Q("3300 mm")))
sketch8.addConstraint(Sketcher.Constraint("DistanceY", 0, 2, 0, 1, Q("2400 mm")))
sketch8.addConstraint(Sketcher.Constraint("DistanceX", -1, 1, 0, 2, Q("10300 mm")))
sketch8.addConstraint(Sketcher.Constraint("DistanceX", -1, 1, 4, 2, Q("6800 mm")))
pocket6 = doc.addObject("PartDesign::Pocket", "Pocket005")
body.addObject(pocket6)
pocket6.Profile = sketch8
pocket6.Type = "ThroughAll"
pocket6.Reversed = True

# Sketch on XY plane
sketch9 = doc.addObject("Sketcher::SketchObject", "Sketch008")
body.addObject(sketch9)
sketch9.AttachmentSupport = (doc.XY_Plane, [""])
sketch9.MapMode = "FlatFace"
sketch9.addGeometry(Part.LineSegment(V(-1500, 3300, 0), V(-1500, -6950, 0)), False)
sketch9.addGeometry(Part.LineSegment(V(-1500, -6950, 0), V(11800, -6950, 0)), False)
sketch9.addGeometry(Part.LineSegment(V(11800, -6950, 0), V(11800, 3300, 0)), False)
sketch9.addGeometry(Part.LineSegment(V(11800, 3300, 0), V(-1500, 3300, 0)), False)
sketch9.addConstraint(Sketcher.Constraint("Coincident", 0, 2, 1, 1))
sketch9.addConstraint(Sketcher.Constraint("Coincident", 1, 2, 2, 1))
sketch9.addConstraint(Sketcher.Constraint("Coincident", 2, 2, 3, 1))
sketch9.addConstraint(Sketcher.Constraint("Coincident", 3, 2, 0, 1))
sketch9.addConstraint(Sketcher.Constraint("Vertical", 0))
sketch9.addConstraint(Sketcher.Constraint("Horizontal", 1))
sketch9.addConstraint(Sketcher.Constraint("Vertical", 2))
sketch9.addConstraint(Sketcher.Constraint("Horizontal", 3))
sketch9.addConstraint(Sketcher.Constraint("DistanceX", 1, 1, 1, 2, Q("13300 mm")))
sketch9.addConstraint(Sketcher.Constraint("DistanceY", 0, 2, 0, 1, Q("10250 mm")))
sketch9.addConstraint(Sketcher.Constraint("DistanceX", 0, 2, -1, 1, Q("1500 mm")))
sketch9.addConstraint(Sketcher.Constraint("DistanceY", 0, 2, -1, 1, Q("6950 mm")))
pad3 = doc.addObject("PartDesign::Pad", "Pad002")
body.addObject(pad3)
pad3.Profile = sketch9
pad3.Length = 10

doc.recompute()
